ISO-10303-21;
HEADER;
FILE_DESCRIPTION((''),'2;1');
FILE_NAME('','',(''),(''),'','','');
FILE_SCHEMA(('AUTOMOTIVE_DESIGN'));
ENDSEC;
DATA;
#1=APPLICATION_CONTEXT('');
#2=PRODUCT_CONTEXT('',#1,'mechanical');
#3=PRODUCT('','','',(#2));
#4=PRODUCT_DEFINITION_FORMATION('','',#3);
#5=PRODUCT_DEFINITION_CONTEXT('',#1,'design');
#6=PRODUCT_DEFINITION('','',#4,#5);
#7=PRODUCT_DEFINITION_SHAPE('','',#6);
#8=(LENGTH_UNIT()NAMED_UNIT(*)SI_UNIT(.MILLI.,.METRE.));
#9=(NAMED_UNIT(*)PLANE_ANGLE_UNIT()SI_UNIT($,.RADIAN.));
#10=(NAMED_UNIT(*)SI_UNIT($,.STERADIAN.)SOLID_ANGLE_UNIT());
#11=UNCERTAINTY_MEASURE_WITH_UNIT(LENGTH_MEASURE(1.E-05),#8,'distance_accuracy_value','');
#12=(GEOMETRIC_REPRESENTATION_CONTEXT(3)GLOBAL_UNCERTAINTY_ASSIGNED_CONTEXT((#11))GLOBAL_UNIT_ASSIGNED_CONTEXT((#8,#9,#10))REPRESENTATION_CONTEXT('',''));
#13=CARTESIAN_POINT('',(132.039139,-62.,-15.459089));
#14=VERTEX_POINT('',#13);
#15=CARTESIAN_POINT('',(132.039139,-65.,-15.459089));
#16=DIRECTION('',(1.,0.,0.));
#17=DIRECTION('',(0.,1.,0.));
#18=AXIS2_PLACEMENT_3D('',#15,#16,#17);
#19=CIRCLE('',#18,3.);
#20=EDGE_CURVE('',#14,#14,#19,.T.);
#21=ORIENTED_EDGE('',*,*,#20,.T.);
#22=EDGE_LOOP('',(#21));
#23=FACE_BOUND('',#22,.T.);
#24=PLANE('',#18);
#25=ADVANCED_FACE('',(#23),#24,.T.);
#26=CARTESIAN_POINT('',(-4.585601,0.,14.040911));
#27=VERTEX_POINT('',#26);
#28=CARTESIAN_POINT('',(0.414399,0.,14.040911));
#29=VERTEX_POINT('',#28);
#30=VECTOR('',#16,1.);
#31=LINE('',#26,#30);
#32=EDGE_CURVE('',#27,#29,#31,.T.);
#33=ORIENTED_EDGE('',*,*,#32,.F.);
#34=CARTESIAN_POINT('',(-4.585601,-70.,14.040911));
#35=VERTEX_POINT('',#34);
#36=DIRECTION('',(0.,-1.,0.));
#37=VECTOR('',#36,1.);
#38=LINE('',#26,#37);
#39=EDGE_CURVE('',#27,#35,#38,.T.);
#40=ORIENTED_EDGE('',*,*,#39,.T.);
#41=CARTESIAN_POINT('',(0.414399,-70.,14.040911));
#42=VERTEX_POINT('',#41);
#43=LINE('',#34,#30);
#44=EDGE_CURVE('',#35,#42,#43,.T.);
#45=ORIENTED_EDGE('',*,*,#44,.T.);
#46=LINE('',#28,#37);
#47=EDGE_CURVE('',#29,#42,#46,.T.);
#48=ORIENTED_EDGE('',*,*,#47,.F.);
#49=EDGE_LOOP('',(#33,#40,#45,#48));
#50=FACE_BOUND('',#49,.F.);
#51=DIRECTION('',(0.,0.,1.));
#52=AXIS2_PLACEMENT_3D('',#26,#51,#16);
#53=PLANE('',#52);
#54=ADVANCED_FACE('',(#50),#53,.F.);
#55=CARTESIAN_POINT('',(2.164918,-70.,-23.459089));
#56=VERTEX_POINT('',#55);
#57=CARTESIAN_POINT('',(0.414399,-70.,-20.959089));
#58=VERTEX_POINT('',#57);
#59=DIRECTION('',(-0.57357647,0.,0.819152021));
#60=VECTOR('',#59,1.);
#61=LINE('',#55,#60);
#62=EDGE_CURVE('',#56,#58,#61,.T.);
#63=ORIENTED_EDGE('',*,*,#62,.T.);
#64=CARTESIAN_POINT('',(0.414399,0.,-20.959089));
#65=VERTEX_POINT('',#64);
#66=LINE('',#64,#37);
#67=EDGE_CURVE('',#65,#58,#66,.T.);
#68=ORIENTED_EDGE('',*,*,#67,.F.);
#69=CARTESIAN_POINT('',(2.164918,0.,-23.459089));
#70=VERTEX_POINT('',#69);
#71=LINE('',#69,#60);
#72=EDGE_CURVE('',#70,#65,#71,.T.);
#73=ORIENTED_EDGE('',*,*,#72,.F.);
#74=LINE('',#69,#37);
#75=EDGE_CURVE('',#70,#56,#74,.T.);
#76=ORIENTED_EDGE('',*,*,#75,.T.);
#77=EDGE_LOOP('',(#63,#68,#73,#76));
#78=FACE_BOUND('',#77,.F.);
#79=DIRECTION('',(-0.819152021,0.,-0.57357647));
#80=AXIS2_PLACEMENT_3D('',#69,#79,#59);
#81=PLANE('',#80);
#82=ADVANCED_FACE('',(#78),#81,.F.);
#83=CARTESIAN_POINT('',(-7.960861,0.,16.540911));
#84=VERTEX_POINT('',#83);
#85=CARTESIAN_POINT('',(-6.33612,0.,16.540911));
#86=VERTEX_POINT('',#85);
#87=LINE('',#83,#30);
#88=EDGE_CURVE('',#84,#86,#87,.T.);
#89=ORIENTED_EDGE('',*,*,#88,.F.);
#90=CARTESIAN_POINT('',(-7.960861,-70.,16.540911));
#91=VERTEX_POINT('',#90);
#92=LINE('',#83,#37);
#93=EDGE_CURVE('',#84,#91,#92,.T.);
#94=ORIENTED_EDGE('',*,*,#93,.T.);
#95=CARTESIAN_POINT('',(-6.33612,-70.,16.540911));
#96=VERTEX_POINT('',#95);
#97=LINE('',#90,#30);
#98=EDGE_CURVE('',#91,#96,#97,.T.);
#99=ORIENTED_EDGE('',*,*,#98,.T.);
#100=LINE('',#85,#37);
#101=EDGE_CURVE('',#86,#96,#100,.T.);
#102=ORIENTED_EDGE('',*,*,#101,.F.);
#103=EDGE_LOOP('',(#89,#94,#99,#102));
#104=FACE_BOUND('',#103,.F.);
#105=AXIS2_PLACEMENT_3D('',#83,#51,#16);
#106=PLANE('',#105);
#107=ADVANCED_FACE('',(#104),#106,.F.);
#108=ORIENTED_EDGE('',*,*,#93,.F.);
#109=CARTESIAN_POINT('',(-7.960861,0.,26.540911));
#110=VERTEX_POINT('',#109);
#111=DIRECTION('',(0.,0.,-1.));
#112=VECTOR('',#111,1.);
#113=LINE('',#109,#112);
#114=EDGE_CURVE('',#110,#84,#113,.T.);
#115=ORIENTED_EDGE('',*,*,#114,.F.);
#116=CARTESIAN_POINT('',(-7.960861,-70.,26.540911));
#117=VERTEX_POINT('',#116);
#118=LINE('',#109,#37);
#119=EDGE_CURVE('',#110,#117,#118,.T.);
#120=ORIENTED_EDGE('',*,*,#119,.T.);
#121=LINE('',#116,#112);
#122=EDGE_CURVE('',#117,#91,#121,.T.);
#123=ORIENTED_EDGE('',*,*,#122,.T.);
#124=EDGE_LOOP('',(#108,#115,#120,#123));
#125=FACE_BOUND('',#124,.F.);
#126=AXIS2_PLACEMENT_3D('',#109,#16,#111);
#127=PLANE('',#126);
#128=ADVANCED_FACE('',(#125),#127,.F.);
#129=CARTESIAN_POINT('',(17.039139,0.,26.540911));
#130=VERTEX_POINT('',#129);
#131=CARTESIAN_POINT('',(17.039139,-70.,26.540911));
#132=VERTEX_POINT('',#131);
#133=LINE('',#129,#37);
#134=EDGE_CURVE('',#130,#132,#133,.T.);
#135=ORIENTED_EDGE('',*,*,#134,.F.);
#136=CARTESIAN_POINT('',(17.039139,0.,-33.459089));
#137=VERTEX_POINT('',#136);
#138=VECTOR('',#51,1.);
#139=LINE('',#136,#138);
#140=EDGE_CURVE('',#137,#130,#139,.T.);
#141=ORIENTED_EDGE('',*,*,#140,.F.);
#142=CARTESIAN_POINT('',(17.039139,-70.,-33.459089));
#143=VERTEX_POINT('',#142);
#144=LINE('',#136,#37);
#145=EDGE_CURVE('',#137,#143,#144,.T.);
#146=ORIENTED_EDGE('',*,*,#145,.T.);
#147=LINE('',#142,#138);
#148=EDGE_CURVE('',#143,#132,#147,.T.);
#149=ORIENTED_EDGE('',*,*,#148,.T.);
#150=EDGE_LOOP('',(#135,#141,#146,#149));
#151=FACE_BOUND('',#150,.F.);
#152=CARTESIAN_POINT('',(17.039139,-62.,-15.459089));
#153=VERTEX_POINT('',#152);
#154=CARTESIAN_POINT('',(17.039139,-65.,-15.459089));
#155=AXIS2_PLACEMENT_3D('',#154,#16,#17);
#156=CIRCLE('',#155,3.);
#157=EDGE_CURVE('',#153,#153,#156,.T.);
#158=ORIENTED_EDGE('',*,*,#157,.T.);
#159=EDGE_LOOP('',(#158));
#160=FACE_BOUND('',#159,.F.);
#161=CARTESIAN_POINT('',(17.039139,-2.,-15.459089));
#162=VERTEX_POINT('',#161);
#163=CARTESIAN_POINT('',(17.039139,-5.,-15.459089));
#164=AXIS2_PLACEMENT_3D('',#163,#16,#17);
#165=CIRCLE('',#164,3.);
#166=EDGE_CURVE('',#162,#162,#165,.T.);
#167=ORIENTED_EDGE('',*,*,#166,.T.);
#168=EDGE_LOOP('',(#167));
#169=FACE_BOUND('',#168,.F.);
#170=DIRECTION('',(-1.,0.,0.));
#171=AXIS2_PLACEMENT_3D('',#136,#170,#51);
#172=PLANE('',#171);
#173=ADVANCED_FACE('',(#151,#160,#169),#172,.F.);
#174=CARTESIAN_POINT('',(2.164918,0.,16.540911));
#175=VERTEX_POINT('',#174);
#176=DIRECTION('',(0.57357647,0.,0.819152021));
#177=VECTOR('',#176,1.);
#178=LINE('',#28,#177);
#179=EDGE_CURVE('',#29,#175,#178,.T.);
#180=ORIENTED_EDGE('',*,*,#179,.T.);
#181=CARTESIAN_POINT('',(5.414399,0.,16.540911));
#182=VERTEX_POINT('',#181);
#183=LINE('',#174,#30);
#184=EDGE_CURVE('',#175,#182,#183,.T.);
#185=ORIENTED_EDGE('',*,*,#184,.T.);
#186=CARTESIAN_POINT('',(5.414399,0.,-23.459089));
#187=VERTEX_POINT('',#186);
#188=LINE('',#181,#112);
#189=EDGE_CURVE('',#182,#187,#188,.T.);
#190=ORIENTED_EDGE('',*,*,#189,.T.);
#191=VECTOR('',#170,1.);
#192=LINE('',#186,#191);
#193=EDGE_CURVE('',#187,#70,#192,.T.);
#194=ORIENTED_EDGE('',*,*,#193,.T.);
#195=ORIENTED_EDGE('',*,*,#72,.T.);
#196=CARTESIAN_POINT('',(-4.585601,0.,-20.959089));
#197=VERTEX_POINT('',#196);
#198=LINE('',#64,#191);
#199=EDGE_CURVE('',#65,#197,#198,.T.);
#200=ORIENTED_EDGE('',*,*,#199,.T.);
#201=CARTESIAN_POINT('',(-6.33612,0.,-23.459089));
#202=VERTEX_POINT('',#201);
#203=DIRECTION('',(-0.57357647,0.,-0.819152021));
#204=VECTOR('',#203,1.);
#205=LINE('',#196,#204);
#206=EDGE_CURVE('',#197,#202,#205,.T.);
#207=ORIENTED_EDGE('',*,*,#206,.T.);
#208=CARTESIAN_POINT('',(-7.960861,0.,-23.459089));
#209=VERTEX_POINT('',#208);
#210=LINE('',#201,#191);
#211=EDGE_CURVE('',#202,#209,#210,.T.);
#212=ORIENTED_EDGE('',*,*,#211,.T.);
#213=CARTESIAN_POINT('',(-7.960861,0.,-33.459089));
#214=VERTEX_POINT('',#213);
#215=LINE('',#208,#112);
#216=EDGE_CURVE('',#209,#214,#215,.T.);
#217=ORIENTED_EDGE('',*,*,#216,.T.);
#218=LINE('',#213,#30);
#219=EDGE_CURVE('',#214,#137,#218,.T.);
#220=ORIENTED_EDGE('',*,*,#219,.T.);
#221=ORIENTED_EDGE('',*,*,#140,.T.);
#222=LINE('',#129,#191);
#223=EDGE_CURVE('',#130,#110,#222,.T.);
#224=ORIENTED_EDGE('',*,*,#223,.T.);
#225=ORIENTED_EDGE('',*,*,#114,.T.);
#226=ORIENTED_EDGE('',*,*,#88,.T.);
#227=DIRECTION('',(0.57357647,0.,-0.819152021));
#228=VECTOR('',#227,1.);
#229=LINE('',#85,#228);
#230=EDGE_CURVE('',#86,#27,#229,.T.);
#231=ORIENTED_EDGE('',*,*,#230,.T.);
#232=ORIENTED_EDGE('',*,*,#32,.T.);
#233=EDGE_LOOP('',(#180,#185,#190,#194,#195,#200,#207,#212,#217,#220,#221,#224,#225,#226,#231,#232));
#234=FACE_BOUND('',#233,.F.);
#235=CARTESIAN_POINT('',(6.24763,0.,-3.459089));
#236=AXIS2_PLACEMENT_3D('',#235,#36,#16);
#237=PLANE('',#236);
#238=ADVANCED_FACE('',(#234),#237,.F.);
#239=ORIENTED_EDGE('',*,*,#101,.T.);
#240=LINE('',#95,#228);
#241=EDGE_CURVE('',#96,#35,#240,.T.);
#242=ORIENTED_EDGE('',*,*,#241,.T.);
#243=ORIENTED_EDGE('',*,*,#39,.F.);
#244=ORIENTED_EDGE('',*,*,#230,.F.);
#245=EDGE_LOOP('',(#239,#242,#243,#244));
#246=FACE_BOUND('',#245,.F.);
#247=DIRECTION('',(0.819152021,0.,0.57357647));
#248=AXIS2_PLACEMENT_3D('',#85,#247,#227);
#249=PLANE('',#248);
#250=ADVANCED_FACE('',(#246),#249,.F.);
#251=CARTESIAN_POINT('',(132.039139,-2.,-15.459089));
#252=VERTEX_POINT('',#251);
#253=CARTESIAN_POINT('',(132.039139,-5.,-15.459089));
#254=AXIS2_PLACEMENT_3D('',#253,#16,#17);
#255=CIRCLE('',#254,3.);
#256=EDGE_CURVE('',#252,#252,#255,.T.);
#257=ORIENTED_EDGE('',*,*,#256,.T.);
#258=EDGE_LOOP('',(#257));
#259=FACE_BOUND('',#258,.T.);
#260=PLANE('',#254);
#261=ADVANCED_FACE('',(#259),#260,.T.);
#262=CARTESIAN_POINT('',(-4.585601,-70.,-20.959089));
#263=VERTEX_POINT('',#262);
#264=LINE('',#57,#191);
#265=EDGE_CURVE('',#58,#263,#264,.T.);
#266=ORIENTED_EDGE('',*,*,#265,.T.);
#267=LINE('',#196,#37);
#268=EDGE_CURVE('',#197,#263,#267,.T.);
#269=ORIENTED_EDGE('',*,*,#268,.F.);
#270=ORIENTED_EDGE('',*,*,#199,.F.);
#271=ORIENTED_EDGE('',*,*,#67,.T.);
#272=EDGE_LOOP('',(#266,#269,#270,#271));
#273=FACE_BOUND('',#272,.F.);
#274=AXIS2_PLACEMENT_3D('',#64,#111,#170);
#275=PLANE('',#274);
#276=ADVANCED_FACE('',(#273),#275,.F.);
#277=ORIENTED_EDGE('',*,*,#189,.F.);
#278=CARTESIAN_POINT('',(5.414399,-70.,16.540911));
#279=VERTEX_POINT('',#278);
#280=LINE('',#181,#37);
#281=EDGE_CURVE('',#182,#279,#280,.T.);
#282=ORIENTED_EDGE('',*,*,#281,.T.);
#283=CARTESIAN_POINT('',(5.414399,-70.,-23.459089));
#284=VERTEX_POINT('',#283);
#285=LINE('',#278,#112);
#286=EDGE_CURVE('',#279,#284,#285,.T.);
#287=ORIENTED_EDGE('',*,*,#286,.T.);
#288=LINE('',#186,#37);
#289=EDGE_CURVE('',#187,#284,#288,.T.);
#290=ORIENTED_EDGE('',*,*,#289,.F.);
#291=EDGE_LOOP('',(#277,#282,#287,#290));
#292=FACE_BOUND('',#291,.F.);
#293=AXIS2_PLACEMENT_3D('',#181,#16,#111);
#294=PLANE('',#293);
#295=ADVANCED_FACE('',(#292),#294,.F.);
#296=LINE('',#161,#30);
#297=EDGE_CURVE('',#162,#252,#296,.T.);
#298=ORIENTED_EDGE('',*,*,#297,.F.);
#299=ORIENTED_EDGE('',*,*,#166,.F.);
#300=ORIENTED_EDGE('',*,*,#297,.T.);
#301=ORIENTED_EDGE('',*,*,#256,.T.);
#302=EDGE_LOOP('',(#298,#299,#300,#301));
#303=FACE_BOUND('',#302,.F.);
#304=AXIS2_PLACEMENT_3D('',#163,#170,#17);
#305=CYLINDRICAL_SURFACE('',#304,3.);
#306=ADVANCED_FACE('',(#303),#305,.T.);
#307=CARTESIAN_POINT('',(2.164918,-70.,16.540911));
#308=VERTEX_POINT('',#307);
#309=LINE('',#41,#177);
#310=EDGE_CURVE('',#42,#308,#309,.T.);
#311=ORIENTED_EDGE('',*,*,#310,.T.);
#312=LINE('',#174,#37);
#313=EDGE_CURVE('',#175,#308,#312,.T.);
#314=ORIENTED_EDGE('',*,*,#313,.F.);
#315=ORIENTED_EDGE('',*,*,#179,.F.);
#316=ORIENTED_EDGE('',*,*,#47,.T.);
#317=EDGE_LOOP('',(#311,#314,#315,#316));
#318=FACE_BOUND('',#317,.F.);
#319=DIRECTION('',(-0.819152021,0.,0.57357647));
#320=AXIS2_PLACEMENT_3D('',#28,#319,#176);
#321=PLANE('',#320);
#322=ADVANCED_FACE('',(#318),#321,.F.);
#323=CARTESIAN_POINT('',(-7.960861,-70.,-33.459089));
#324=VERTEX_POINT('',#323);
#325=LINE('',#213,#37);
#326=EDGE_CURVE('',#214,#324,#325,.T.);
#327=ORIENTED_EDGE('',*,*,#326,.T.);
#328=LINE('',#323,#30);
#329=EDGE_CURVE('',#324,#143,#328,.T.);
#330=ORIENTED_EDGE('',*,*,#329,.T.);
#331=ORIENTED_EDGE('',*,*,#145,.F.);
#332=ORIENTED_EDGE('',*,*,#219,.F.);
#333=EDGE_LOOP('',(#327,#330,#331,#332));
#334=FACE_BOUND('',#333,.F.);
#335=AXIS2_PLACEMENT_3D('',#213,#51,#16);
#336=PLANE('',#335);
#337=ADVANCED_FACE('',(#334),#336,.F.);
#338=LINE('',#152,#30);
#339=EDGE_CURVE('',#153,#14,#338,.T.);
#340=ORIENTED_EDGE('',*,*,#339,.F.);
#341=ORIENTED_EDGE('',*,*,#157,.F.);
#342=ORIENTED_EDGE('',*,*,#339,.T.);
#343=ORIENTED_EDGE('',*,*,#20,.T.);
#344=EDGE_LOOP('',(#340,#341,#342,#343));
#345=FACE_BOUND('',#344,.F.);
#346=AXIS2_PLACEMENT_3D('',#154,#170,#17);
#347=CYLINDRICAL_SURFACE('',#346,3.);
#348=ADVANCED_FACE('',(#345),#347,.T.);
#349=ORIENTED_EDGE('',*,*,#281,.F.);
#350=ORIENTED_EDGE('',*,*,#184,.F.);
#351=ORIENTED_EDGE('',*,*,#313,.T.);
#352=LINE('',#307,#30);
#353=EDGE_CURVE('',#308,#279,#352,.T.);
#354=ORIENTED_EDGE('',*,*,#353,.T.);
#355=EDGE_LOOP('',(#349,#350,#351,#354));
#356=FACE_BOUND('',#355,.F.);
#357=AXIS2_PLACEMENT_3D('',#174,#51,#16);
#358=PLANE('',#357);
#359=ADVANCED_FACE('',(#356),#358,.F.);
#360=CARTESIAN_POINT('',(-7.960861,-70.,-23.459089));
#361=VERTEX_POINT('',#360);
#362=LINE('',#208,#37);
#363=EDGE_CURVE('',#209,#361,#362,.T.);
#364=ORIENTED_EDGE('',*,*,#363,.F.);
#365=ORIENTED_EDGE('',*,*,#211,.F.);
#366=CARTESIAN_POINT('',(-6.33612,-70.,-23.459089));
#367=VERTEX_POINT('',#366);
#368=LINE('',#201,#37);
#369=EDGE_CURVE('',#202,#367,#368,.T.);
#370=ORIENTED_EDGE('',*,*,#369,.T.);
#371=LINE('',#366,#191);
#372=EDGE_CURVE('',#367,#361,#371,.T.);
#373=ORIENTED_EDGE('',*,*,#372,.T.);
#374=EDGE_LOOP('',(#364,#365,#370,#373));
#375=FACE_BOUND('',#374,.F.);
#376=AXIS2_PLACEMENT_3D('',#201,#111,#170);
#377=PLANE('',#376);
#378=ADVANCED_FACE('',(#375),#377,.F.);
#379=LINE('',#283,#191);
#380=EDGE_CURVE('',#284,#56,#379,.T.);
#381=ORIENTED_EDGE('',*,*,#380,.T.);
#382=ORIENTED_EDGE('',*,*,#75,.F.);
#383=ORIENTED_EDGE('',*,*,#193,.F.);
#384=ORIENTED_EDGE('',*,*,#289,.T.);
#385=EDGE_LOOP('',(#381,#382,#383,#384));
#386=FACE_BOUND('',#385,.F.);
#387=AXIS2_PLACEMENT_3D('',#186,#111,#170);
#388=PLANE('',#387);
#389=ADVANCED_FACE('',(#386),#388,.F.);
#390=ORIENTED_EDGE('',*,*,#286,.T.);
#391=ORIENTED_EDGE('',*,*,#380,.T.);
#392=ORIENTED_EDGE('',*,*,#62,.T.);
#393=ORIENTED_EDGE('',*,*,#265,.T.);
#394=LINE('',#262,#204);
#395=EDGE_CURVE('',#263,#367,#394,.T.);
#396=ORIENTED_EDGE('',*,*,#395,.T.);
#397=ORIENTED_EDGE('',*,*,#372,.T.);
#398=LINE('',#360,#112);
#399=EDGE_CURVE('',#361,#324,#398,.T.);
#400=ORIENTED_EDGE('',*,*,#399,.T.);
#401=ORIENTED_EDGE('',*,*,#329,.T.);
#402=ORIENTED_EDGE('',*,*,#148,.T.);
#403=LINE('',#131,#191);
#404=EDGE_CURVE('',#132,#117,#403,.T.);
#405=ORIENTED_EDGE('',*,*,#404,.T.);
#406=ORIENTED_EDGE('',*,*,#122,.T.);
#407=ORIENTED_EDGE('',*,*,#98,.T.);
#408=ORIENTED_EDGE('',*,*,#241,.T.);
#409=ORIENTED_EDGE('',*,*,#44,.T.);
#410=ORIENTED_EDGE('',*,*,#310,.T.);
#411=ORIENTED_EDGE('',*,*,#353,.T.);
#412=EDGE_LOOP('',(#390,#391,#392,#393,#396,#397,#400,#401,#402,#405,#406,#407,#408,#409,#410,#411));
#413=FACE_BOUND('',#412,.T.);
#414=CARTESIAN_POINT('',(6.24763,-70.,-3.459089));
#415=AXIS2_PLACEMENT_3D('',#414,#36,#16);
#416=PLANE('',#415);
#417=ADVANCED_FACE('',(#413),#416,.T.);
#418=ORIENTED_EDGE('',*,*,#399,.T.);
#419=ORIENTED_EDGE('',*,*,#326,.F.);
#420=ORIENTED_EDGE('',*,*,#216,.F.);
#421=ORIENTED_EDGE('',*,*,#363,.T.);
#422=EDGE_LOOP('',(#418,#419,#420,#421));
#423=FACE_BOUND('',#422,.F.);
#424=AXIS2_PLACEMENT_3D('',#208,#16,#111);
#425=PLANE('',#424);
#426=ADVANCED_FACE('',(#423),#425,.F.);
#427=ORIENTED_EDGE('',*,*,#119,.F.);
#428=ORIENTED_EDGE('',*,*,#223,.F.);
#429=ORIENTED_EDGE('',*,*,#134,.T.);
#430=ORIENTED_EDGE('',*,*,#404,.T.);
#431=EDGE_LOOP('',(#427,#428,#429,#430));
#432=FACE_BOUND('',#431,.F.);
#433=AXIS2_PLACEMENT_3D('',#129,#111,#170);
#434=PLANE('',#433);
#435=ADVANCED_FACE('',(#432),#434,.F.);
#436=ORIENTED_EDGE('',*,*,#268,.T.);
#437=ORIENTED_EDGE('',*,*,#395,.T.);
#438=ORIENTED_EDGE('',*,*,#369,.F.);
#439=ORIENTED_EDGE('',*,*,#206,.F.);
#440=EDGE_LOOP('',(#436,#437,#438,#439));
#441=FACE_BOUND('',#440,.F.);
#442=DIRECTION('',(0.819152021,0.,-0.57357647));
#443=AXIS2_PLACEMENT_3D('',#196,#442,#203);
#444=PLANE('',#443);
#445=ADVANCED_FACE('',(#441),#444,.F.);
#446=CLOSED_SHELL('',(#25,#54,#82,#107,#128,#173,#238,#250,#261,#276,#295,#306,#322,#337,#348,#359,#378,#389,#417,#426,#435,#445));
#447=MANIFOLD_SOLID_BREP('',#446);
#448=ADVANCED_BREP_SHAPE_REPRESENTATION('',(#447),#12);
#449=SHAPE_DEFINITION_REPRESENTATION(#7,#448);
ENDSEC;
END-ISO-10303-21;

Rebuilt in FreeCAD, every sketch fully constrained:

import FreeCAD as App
import Part
import Sketcher

V = App.Vector
Q = App.Units.Quantity


def add_polygon(sketch, points):
    """Adds a closed chain of lines whose ends are joined by coincident constraints."""
    first, n = sketch.GeometryCount, len(points)
    for a, b in zip(points, points[1:] + points[:1]):
        sketch.addGeometry(Part.LineSegment(App.Vector(*a, 0), App.Vector(*b, 0)), False)
    for i in range(n):
        sketch.addConstraint(Sketcher.Constraint("Coincident", first + i, 2, first + (i + 1) % n, 1))

doc = App.newDocument("Part")
body = doc.addObject("PartDesign::Body", "Body")

# Sketch on XZ plane
sketch1 = doc.addObject("Sketcher::SketchObject", "Sketch")
body.addObject(sketch1)
sketch1.AttachmentSupport = (doc.XZ_Plane, [""])
sketch1.MapMode = "FlatFace"
add_polygon(sketch1, [(-8, 26.5), (-8, 16.5), (-6.3, 16.5), (-4.6, 14), (0.4, 14), (2.2, 16.5), (5.4, 16.5), (5.4, -23.5), (2.2, -23.5), (0.4, -21), (-4.6, -21), (-6.3, -23.5), (-8, -23.5), (-8, -33.5), (17, -33.5), (17, 26.5)])  # lines 0-15
sketch1.addConstraint([
    Sketcher.Constraint("Vertical", 0),
    Sketcher.Constraint("Horizontal", 1),
    Sketcher.Constraint("Horizontal", 3),
    Sketcher.Constraint("Horizontal", 5),
    Sketcher.Constraint("Vertical", 6),
    Sketcher.Constraint("Horizontal", 7),
    Sketcher.Constraint("Horizontal", 9),
    Sketcher.Constraint("Horizontal", 11),
    Sketcher.Constraint("Vertical", 12),
    Sketcher.Constraint("Horizontal", 13),
    Sketcher.Constraint("Vertical", 14),
    Sketcher.Constraint("Horizontal", 15),
    Sketcher.Constraint("Parallel", 2, 8),
    Sketcher.Constraint("Parallel", 4, 10),
    Sketcher.Constraint("Horizontal", 1, 2, 4, 2),
    Sketcher.Constraint("Horizontal", 7, 2, 10, 2),
    Sketcher.Constraint("Vertical", 4, 2, 7, 2),
    Sketcher.Constraint("Vertical", 3, 2, 8, 2),
    Sketcher.Constraint("Vertical", 2, 2, 9, 2),
    Sketcher.Constraint("Vertical", 1, 2, 10, 2),
    Sketcher.Constraint("Vertical", 0, 2, 11, 2),
    Sketcher.Constraint("Equal", 0, 12),
    Sketcher.Constraint("DistanceX", 3, 1, 3, 2, 5.0),
    Sketcher.Constraint("DistanceX", 13, 1, 13, 2, 25.0),
    Sketcher.Constraint("DistanceY", 0, 2, 0, 1, 10.0),
    Sketcher.Constraint("DistanceY", 6, 2, 6, 1, 40.0),
    Sketcher.Constraint("Angle", 2, Q("-54.999998 deg")),
    Sketcher.Constraint("DistanceX", 3, 2, 5, 2, 5.0),
    Sketcher.Constraint("DistanceY", 8, 2, 3, 2, 35.0),
    Sketcher.Constraint("DistanceX", 1, 1, 1, 2, 1.624741),
    Sketcher.Constraint("DistanceX", 2, 2, -1, 1, 4.585601),
    Sketcher.Constraint("DistanceY", -1, 1, 0, 2, 16.540911),
])
pad1 = doc.addObject("PartDesign::Pad", "Pad")
body.addObject(pad1)
pad1.Profile = sketch1
pad1.Length = 70

# Sketch on YZ plane
sketch2 = doc.addObject("Sketcher::SketchObject", "Sketch001")
body.addObject(sketch2)
sketch2.AttachmentSupport = (doc.YZ_Plane, [""])
sketch2.MapMode = "FlatFace"
sketch2.AttachmentOffset = App.Placement(V(0, 0, 17.039139), App.Rotation())
sketch2.addGeometry([
    Part.Circle(V(-65, -15.5, 0), V(0, 0, 1), 3),
    Part.Circle(V(-5, -15.5, 0), V(0, 0, 1), 3),
], False)
sketch2.addConstraint([
    Sketcher.Constraint("Equal", 0, 1),
    Sketcher.Constraint("Horizontal", 0, 3, 1, 3),
    Sketcher.Constraint("Diameter", 0, 6.0),
    Sketcher.Constraint("DistanceX", 0, 3, -1, 1, 65.0),
    Sketcher.Constraint("DistanceX", 1, 3, -1, 1, 5.0),
    Sketcher.Constraint("DistanceY", 0, 3, -1, 1, 15.459089),
])
pad2 = doc.addObject("PartDesign::Pad", "Pad001")
body.addObject(pad2)
pad2.Profile = sketch2
pad2.Length = 115

doc.recompute()
